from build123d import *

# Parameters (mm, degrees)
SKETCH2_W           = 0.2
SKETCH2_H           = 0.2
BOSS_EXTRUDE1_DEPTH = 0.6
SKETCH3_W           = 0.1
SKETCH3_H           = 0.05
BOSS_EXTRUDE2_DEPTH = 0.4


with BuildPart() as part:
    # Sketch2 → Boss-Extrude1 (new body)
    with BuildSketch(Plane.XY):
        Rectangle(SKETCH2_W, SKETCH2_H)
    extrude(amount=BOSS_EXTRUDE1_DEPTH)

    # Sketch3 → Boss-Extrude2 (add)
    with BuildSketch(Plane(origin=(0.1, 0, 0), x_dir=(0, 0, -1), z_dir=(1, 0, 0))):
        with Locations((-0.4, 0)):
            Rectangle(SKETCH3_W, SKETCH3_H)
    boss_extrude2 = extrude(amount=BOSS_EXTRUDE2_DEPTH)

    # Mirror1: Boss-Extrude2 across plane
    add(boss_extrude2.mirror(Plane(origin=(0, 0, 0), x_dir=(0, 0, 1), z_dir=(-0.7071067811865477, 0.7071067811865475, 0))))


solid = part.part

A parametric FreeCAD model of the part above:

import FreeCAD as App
import Part
import Sketcher


def add_polygon(sketch, points):
    """Adds a closed chain of lines whose ends are joined by coincident constraints."""
    first, n = sketch.GeometryCount, len(points)
    for a, b in zip(points, points[1:] + points[:1]):
        sketch.addGeometry(Part.LineSegment(App.Vector(*a, 0), App.Vector(*b, 0)), False)
    for i in range(n):
        sketch.addConstraint(Sketcher.Constraint("Coincident", first + i, 2, first + (i + 1) % n, 1))

doc = App.newDocument("Part")
body = doc.addObject("PartDesign::Body", "Body")

# Sketch on XY plane
sketch1 = doc.addObject("Sketcher::SketchObject", "Sketch")
body.addObject(sketch1)
sketch1.AttachmentSupport = (doc.XY_Plane, [""])
sketch1.MapMode = "FlatFace"
add_polygon(sketch1, [(-0.1, 0.1), (-0.1, -0.1), (0.1, -0.1), (0.1, 0.1)])  # lines 0-3
sketch1.addConstraint(Sketcher.Constraint("Vertical", 0))
sketch1.addConstraint(Sketcher.Constraint("Horizontal", 1))
sketch1.addConstraint(Sketcher.Constraint("Vertical", 2))
sketch1.addConstraint(Sketcher.Constraint("Horizontal", 3))
sketch1.addConstraint(Sketcher.Constraint("Symmetric", 0, 2, 2, 2, -1, 1))
sketch1.addConstraint(Sketcher.Constraint("Equal", 3, 0))
sketch1.addConstraint(Sketcher.Constraint("DistanceX", 1, 1, 1, 2, 0.2))
pad1 = doc.addObject("PartDesign::Pad", "Pad")
body.addObject(pad1)
pad1.Profile = sketch1
pad1.Length = 0.6

# Sketch on YZ plane
sketch2 = doc.addObject("Sketcher::SketchObject", "Sketch001")
body.addObject(sketch2)
sketch2.AttachmentSupport = (doc.YZ_Plane, [""])
sketch2.MapMode = "FlatFace"
sketch2.AttachmentOffset = App.Placement(App.Vector(0, 0, 0.1), App.Rotation())
add_polygon(sketch2, [(0.025, 0.45), (-0.025, 0.45), (-0.025, 0.35), (0.025, 0.35)])  # lines 0-3
sketch2.addConstraint(Sketcher.Constraint("Horizontal", 0))
sketch2.addConstraint(Sketcher.Constraint("Vertical", 1))
sketch2.addConstraint(Sketcher.Constraint("Horizontal", 2))
sketch2.addConstraint(Sketcher.Constraint("Vertical", 3))
sketch2.addConstraint(Sketcher.Constraint("DistanceY", 1, 2, 1, 1, 0.1))
sketch2.addConstraint(Sketcher.Constraint("DistanceX", 0, 2, 0, 1, 0.05))
sketch2.addConstraint(Sketcher.Constraint("DistanceY", -1, 1, 0, 2, 0.45))
sketch2.addConstraint(Sketcher.Constraint("DistanceX", 0, 2, -1, 1, 0.025))
pad2 = doc.addObject("PartDesign::Pad", "Pad001")
body.addObject(pad2)
pad2.Profile = sketch2
pad2.Length = 0.4
doc.recompute()

datumplane = doc.addObject("PartDesign::Plane", "DatumPlane")
body.addObject(datumplane)
datumplane.Placement = App.Placement(App.Vector(0, 0, 0), App.Rotation(App.Vector(0.707106781, 0.707106781, 0), App.Vector(0, 0, -1), App.Vector(-0.707106781, 0.707106781, 0), "ZXY"))
mirrored = doc.addObject("PartDesign::Mirrored", "Mirrored")
body.addObject(mirrored)
mirrored.Originals = [pad2]
mirrored.MirrorPlane = (datumplane, [""])
body.Tip = mirrored

doc.recompute()
